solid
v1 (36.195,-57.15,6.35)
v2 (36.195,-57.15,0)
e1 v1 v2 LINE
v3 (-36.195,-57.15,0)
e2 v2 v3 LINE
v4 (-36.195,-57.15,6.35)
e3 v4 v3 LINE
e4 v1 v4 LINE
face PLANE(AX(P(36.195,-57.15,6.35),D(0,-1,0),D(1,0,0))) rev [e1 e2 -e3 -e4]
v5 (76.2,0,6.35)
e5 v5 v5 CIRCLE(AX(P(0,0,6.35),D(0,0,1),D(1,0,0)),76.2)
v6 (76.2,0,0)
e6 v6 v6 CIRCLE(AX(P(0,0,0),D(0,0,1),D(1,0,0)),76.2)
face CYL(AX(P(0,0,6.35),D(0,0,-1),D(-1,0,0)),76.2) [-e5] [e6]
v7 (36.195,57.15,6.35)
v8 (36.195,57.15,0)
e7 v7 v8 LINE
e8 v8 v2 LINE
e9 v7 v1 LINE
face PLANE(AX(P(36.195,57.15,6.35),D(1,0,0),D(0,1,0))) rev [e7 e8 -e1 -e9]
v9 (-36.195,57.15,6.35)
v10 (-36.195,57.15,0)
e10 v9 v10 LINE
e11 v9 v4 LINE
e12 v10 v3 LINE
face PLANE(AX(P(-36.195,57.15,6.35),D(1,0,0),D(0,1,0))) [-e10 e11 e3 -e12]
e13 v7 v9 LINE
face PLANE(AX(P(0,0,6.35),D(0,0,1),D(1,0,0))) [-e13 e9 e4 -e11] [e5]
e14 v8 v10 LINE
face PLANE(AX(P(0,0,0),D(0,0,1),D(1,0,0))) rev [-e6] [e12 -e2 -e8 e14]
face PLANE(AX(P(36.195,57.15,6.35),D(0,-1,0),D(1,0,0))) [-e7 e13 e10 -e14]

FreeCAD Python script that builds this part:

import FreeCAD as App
import Part
import Sketcher
Q = App.Units.Quantity

doc = App.newDocument("Part")
params = doc.addObject("Spreadsheet::Sheet", "Params")
for row, (alias, value) in enumerate([
    ("sketch1_diameter", "6 in"),
    ("sketch1_height", "4.5 in"),
    ("sketch1_width", "2.85 in"),
    ("pad1_length", "0.25 in"),
], start=1):
    params.set(f"A{row}", alias)
    params.set(f"B{row}", "=" + value)
    params.setAlias(f"B{row}", alias)

body = doc.addObject("PartDesign::Body", "Body")

sketch1 = body.newObject("Sketcher::SketchObject", "Sketch")
sketch1.AttachmentSupport = (doc.getObject("XY_Plane"), [""])
sketch1.MapMode = "FlatFace"
sketch1.addGeometry([
    Part.Circle(App.Vector(0, 0, 0), App.Vector(0, 0, 1), 76),
    Part.LineSegment(App.Vector(36, -57, 0), App.Vector(-36, -57, 0)),
    Part.LineSegment(App.Vector(-36, -57, 0), App.Vector(-36, 57, 0)),
    Part.LineSegment(App.Vector(-36, 57, 0), App.Vector(36, 57, 0)),
    Part.LineSegment(App.Vector(36, 57, 0), App.Vector(36, -57, 0)),
], False)
sketch1.addConstraint([
    Sketcher.Constraint("Coincident", 1, 2, 2, 1),
    Sketcher.Constraint("Coincident", 2, 2, 3, 1),
    Sketcher.Constraint("Coincident", 3, 2, 4, 1),
    Sketcher.Constraint("Coincident", 4, 2, 1, 1),
    Sketcher.Constraint("Horizontal", 1),
    Sketcher.Constraint("Vertical", 2),
    Sketcher.Constraint("Horizontal", 3),
    Sketcher.Constraint("Vertical", 4),
    Sketcher.Constraint("Coincident", 0, 3, -1, 1),
    Sketcher.Constraint("Symmetric", 1, 2, 3, 2, -1, 1),
    Sketcher.Constraint("Diameter", 0, Q("6 in")),
    Sketcher.Constraint("DistanceY", 2, 1, 2, 2, Q("4.5 in")),
    Sketcher.Constraint("DistanceX", 1, 2, 1, 1, Q("2.85 in")),
])
sketch1.setExpression("Constraints[10]", "Params.sketch1_diameter")
sketch1.setExpression("Constraints[11]", "Params.sketch1_height")
sketch1.setExpression("Constraints[12]", "Params.sketch1_width")
pad1 = body.newObject("PartDesign::Pad", "Pad")
pad1.Profile = sketch1
pad1.setExpression("Length", "Params.pad1_length")

doc.recompute()
